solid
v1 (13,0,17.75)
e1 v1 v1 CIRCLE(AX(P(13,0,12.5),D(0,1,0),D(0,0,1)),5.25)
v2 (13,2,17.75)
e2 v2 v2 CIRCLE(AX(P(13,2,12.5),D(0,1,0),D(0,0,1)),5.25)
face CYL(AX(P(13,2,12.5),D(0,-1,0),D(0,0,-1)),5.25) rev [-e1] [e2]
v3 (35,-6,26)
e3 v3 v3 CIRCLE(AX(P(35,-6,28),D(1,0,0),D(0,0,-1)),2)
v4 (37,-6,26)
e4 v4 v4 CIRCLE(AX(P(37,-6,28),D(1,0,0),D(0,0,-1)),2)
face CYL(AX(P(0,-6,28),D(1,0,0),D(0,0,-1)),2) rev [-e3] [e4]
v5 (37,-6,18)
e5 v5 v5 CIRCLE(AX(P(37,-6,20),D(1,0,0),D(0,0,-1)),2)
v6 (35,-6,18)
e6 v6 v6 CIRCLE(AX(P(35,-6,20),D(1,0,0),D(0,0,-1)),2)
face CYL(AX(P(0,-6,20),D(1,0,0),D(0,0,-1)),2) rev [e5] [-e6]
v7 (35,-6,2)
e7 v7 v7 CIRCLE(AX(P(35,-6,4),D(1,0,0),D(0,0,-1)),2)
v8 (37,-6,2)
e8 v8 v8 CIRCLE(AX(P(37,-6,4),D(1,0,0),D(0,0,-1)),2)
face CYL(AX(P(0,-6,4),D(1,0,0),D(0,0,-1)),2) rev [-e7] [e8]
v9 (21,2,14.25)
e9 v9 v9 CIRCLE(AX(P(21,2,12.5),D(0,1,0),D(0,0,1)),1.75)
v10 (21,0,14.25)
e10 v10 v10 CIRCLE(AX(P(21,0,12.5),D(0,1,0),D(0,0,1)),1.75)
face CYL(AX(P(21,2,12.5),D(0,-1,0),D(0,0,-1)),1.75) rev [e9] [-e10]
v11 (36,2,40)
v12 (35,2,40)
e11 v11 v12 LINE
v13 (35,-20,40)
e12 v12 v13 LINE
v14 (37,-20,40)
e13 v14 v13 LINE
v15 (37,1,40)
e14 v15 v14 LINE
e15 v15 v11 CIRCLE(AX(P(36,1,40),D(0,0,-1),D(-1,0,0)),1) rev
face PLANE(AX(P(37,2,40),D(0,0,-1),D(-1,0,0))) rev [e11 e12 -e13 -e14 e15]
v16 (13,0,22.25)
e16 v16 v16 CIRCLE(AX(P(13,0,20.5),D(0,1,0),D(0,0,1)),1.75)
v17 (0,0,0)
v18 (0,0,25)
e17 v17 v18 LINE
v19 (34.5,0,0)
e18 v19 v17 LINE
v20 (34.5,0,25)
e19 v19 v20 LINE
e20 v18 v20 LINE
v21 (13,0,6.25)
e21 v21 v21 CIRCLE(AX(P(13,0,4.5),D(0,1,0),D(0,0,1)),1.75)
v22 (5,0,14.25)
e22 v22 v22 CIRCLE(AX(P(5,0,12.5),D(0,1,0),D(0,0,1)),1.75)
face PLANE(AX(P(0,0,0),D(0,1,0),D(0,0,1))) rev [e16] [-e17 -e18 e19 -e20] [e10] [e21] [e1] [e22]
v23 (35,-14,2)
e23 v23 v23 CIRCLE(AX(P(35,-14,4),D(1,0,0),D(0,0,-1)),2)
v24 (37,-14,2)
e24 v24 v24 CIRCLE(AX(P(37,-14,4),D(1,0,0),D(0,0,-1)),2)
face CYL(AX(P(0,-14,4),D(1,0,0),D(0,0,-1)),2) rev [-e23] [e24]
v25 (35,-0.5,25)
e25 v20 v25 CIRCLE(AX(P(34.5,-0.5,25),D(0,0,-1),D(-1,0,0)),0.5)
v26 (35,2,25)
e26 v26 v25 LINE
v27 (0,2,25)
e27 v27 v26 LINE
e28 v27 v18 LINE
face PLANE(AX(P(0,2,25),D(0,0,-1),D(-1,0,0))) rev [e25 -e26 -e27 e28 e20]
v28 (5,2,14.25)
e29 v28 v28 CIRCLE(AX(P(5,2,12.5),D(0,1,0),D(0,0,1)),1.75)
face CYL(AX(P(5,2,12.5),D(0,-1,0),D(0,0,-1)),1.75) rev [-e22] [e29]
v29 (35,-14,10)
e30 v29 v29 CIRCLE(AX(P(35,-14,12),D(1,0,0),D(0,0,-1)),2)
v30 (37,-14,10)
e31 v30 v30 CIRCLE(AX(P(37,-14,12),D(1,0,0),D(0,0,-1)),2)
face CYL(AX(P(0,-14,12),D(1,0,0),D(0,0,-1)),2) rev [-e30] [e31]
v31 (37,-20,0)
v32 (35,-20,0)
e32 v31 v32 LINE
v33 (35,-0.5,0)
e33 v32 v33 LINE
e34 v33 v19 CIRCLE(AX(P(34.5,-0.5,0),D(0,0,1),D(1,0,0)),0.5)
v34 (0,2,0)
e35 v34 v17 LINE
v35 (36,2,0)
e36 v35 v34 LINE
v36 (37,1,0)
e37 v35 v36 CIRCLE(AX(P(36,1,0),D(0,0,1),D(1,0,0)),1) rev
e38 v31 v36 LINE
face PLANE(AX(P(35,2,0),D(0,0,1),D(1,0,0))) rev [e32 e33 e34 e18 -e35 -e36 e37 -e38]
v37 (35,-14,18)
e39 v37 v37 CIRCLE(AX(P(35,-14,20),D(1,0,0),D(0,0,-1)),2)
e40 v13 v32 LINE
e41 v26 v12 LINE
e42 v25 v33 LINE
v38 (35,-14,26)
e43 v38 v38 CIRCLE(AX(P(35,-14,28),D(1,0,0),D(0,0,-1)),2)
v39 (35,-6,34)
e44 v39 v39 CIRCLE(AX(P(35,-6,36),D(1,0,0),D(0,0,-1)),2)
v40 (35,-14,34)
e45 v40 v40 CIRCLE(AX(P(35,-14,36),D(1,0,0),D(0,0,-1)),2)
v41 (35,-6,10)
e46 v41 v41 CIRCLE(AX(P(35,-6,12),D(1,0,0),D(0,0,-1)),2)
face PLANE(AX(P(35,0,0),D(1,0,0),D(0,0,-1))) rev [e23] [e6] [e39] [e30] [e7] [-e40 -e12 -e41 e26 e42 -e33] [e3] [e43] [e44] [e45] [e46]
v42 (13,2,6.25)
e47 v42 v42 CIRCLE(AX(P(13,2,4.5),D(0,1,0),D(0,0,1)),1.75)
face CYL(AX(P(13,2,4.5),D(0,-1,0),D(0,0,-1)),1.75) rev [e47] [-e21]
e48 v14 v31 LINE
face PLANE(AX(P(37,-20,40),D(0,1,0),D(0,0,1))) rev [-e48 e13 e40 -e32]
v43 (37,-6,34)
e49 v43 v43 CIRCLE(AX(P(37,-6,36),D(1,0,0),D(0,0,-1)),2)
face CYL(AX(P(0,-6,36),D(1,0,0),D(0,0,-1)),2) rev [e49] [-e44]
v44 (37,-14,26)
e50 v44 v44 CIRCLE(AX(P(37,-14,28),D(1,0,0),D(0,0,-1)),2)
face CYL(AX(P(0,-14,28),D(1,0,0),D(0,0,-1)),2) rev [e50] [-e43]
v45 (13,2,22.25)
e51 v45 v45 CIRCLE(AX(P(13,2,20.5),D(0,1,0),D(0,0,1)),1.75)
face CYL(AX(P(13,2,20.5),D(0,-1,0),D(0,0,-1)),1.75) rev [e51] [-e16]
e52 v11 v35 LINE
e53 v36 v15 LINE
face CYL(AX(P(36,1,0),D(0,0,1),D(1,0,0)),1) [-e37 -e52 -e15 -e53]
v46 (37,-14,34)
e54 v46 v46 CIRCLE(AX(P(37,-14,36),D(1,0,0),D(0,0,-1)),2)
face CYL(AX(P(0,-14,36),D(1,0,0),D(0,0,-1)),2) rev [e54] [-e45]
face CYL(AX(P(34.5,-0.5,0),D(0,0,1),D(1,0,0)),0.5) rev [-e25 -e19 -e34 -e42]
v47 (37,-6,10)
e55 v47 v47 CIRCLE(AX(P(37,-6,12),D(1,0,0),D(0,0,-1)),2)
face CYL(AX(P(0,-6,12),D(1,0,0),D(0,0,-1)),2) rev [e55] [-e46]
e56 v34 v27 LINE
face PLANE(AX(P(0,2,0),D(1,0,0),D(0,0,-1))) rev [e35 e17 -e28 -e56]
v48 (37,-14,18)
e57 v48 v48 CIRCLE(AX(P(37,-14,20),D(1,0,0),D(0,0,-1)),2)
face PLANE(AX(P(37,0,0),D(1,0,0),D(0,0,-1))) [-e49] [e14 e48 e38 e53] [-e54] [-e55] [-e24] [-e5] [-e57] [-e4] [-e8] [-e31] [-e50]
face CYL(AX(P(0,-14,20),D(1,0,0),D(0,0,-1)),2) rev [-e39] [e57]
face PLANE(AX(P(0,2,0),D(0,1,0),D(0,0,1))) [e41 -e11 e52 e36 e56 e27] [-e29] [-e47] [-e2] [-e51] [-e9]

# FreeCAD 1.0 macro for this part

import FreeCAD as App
import Part
import Sketcher
from FreeCAD import Vector


def edges_at(feature, points):
    """Names of the edges that pass closest to the given points."""
    edges = feature.Shape.Edges
    near = lambda p: min(range(len(edges)), key=lambda i: edges[i].distToShape(Part.Vertex(*p))[0])
    return sorted({f"Edge{near(p) + 1}" for p in points})

doc = App.newDocument("Part")
body = doc.addObject("PartDesign::Body", "Body")

sketch1 = doc.addObject("Sketcher::SketchObject", "Sketch")
body.addObject(sketch1)
sketch1.AttachmentSupport = (doc.XZ_Plane, [""])
sketch1.MapMode = "FlatFace"
sketch1.addGeometry([
    Part.LineSegment(Vector(0, 0, 0), Vector(0, 25, 0)),
    Part.LineSegment(Vector(0, 25, 0), Vector(35, 25, 0)),
    Part.LineSegment(Vector(35, 25, 0), Vector(35, 0, 0)),
    Part.LineSegment(Vector(35, 0, 0), Vector(0, 0, 0)),
    Part.Circle(Vector(13, 20.5, 0), Vector(0, 0, 1), 1.8),
    Part.Circle(Vector(5, 12.5, 0), Vector(0, 0, 1), 1.8),
    Part.Circle(Vector(13, 12.5, 0), Vector(0, 0, 1), 5.2),
    Part.Circle(Vector(21, 12.5, 0), Vector(0, 0, 1), 1.8),
    Part.Circle(Vector(13, 4.5, 0), Vector(0, 0, 1), 1.8),
], False)
sketch1.addConstraint([
    Sketcher.Constraint("Coincident", 0, 2, 1, 1),
    Sketcher.Constraint("Coincident", 1, 2, 2, 1),
    Sketcher.Constraint("Coincident", 2, 2, 3, 1),
    Sketcher.Constraint("Coincident", 3, 2, 0, 1),
    Sketcher.Constraint("Vertical", 0),
    Sketcher.Constraint("Horizontal", 1),
    Sketcher.Constraint("Vertical", 2),
    Sketcher.Constraint("Horizontal", 3),
    Sketcher.Constraint("Coincident", 3, 2, -1, 1),
    Sketcher.Constraint("Equal", 4, 5),
    Sketcher.Constraint("Equal", 5, 7),
    Sketcher.Constraint("Equal", 7, 8),
    Sketcher.Constraint("Horizontal", 5, 3, 6, 3),
    Sketcher.Constraint("Horizontal", 6, 3, 7, 3),
    Sketcher.Constraint("Vertical", 4, 3, 6, 3),
    Sketcher.Constraint("Vertical", 6, 3, 8, 3),
    Sketcher.Constraint("Diameter", 4, 3.5),
    Sketcher.Constraint("Diameter", 6, 10.5),
    Sketcher.Constraint("DistanceX", 1, 1, 1, 2, 35.0),
    Sketcher.Constraint("DistanceY", 0, 1, 0, 2, 25.0),
    Sketcher.Constraint("DistanceX", -1, 1, 4, 3, 13.0),
    Sketcher.Constraint("DistanceX", -1, 1, 5, 3, 5.0),
    Sketcher.Constraint("DistanceX", -1, 1, 7, 3, 21.0),
    Sketcher.Constraint("DistanceY", 5, 3, 4, 3, 8.0),
    Sketcher.Constraint("DistanceY", 8, 3, 6, 3, 8.0),
    Sketcher.Constraint("DistanceY", -1, 1, 4, 3, 20.5),
])
pad1 = doc.addObject("PartDesign::Pad", "Pad")
body.addObject(pad1)
pad1.Profile = sketch1
pad1.Length = 2
pad1.Reversed = True

sketch2 = doc.addObject("Sketcher::SketchObject", "Sketch001")
body.addObject(sketch2)
sketch2.AttachmentSupport = (doc.YZ_Plane, [""])
sketch2.MapMode = "FlatFace"
sketch2.AttachmentOffset = App.Placement(Vector(0, 0, 35), App.Rotation())
sketch2.addGeometry([
    Part.LineSegment(Vector(2, 40, 0), Vector(-20, 40, 0)),
    Part.LineSegment(Vector(-20, 40, 0), Vector(-20, 0, 0)),
    Part.LineSegment(Vector(-20, 0, 0), Vector(2, 0, 0)),
    Part.LineSegment(Vector(2, 0, 0), Vector(2, 40, 0)),
], False)
sketch2.addConstraint([
    Sketcher.Constraint("Coincident", 0, 2, 1, 1),
    Sketcher.Constraint("Coincident", 1, 2, 2, 1),
    Sketcher.Constraint("Coincident", 2, 2, 3, 1),
    Sketcher.Constraint("Coincident", 3, 2, 0, 1),
    Sketcher.Constraint("Horizontal", 0),
    Sketcher.Constraint("Vertical", 1),
    Sketcher.Constraint("Horizontal", 2),
    Sketcher.Constraint("Vertical", 3),
    Sketcher.Constraint("PointOnObject", 1, 2, -1),
    Sketcher.Constraint("DistanceX", 0, 2, 0, 1, 22.0),
    Sketcher.Constraint("DistanceY", 1, 2, 1, 1, 40.0),
    Sketcher.Constraint("DistanceX", 0, 2, -1, 1, 20.0),
])
pad2 = doc.addObject("PartDesign::Pad", "Pad001")
body.addObject(pad2)
pad2.Profile = sketch2
pad2.Length = 2

sketch3 = doc.addObject("Sketcher::SketchObject", "Sketch002")
body.addObject(sketch3)
sketch3.AttachmentSupport = (doc.YZ_Plane, [""])
sketch3.MapMode = "FlatFace"
sketch3.AttachmentOffset = App.Placement(Vector(0, 0, 37), App.Rotation())
sketch3.addGeometry([
    Part.Circle(Vector(-6, 20, 0), Vector(0, 0, 1), 2),
    Part.Circle(Vector(-6, 12, 0), Vector(0, 0, 1), 2),
    Part.Circle(Vector(-6, 4, 0), Vector(0, 0, 1), 2),
    Part.Circle(Vector(-6, 28, 0), Vector(0, 0, 1), 2),
    Part.Circle(Vector(-6, 36, 0), Vector(0, 0, 1), 2),
    Part.Circle(Vector(-14, 36, 0), Vector(0, 0, 1), 2),
    Part.Circle(Vector(-14, 28, 0), Vector(0, 0, 1), 2),
    Part.Circle(Vector(-14, 20, 0), Vector(0, 0, 1), 2),
    Part.Circle(Vector(-14, 12, 0), Vector(0, 0, 1), 2),
    Part.Circle(Vector(-14, 4, 0), Vector(0, 0, 1), 2),
], False)
sketch3.addConstraint([
    Sketcher.Constraint("Equal", 0, 1),
    Sketcher.Constraint("Equal", 1, 2),
    Sketcher.Constraint("Equal", 2, 3),
    Sketcher.Constraint("Equal", 3, 4),
    Sketcher.Constraint("Equal", 4, 5),
    Sketcher.Constraint("Equal", 5, 6),
    Sketcher.Constraint("Equal", 6, 7),
    Sketcher.Constraint("Equal", 7, 8),
    Sketcher.Constraint("Equal", 8, 9),
    Sketcher.Constraint("Horizontal", 4, 3, 5, 3),
    Sketcher.Constraint("Horizontal", 3, 3, 6, 3),
    Sketcher.Constraint("Horizontal", 0, 3, 7, 3),
    Sketcher.Constraint("Horizontal", 1, 3, 8, 3),
    Sketcher.Constraint("Horizontal", 2, 3, 9, 3),
    Sketcher.Constraint("Vertical", 0, 3, 1, 3),
    Sketcher.Constraint("Vertical", 1, 3, 2, 3),
    Sketcher.Constraint("Vertical", 2, 3, 3, 3),
    Sketcher.Constraint("Vertical", 3, 3, 4, 3),
    Sketcher.Constraint("Vertical", 5, 3, 6, 3),
    Sketcher.Constraint("Vertical", 6, 3, 7, 3),
    Sketcher.Constraint("Vertical", 7, 3, 8, 3),
    Sketcher.Constraint("Vertical", 8, 3, 9, 3),
    Sketcher.Constraint("Diameter", 0, 4.0),
    Sketcher.Constraint("DistanceX", 0, 3, -1, 1, 6.0),
    Sketcher.Constraint("DistanceY", -1, 1, 0, 3, 20.0),
    Sketcher.Constraint("DistanceY", -1, 1, 1, 3, 12.0),
    Sketcher.Constraint("DistanceY", -1, 1, 2, 3, 4.0),
    Sketcher.Constraint("DistanceY", -1, 1, 3, 3, 28.0),
    Sketcher.Constraint("DistanceY", -1, 1, 4, 3, 36.0),
    Sketcher.Constraint("DistanceX", 5, 3, -1, 1, 14.0),
])
pocket1 = doc.addObject("PartDesign::Pocket", "Pocket")
body.addObject(pocket1)
pocket1.Profile = sketch3
pocket1.Type = "ThroughAll"
doc.recompute()

fillet = doc.addObject("PartDesign::Fillet", "Fillet")
body.addObject(fillet)
fillet.Base = (pocket1, edges_at(pocket1, [(37, 2, 20)]))
fillet.Radius = 1
doc.recompute()

fillet2 = doc.addObject("PartDesign::Fillet", "Fillet001")
body.addObject(fillet2)
fillet2.Base = (fillet, edges_at(fillet, [(35, 0, 12.5)]))
fillet2.Radius = 0.5

doc.recompute()
